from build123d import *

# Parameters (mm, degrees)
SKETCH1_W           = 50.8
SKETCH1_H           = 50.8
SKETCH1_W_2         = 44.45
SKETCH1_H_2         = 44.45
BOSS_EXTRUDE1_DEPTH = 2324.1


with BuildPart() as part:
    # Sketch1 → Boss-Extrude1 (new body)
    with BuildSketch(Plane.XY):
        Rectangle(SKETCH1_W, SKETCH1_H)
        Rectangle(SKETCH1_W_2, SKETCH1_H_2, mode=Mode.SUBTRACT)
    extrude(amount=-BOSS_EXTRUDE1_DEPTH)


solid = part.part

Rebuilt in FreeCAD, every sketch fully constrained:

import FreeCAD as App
import Part
import Sketcher
from FreeCAD import Vector
Q = App.Units.Quantity


def add_polygon(sketch, points):
    """Adds a closed chain of lines whose ends are joined by coincident constraints."""
    first, n = sketch.GeometryCount, len(points)
    for a, b in zip(points, points[1:] + points[:1]):
        sketch.addGeometry(Part.LineSegment(App.Vector(*a, 0), App.Vector(*b, 0)), False)
    for i in range(n):
        sketch.addConstraint(Sketcher.Constraint("Coincident", first + i, 2, first + (i + 1) % n, 1))

doc = App.newDocument("Part")
params = doc.addObject("Spreadsheet::Sheet", "Params")
for row, (alias, value) in enumerate([
    ("sketch1_width", "2 in"),
    ("sketch1_width2", "1.75 in"),
    ("pad1_length", "91.5 in"),
], start=1):
    params.set(f"A{row}", alias)
    params.set(f"B{row}", "=" + value)
    params.setAlias(f"B{row}", alias)

body = doc.addObject("PartDesign::Body", "Body")

# Sketch on XY plane
sketch1 = body.newObject("Sketcher::SketchObject", "Sketch")
sketch1.AttachmentSupport = (doc.getObject("XY_Plane"), [""])
sketch1.MapMode = "FlatFace"
add_polygon(sketch1, [(-25, 25), (-25, -25), (25, -25), (25, 25)])  # lines 0-3
add_polygon(sketch1, [(22, -22), (-22, -22), (-22, 22), (22, 22)])  # lines 4-7
sketch1.addConstraint([
    Sketcher.Constraint("Vertical", 0),
    Sketcher.Constraint("Horizontal", 1),
    Sketcher.Constraint("Vertical", 2),
    Sketcher.Constraint("Horizontal", 3),
    Sketcher.Constraint("Horizontal", 4),
    Sketcher.Constraint("Vertical", 5),
    Sketcher.Constraint("Horizontal", 6),
    Sketcher.Constraint("Vertical", 7),
    Sketcher.Constraint("Symmetric", 0, 2, 2, 2, -1, 1),
    Sketcher.Constraint("Symmetric", 4, 2, 6, 2, -1, 1),
    Sketcher.Constraint("Equal", 3, 0),
    Sketcher.Constraint("Equal", 6, 5),
    Sketcher.Constraint("DistanceX", 1, 1, 1, 2, Q("2 in")),
    Sketcher.Constraint("DistanceX", 4, 2, 4, 1, Q("1.75 in")),
])
sketch1.setExpression("Constraints[20]", "Params.sketch1_width")
sketch1.setExpression("Constraints[21]", "Params.sketch1_width2")
pad1 = body.newObject("PartDesign::Pad", "Pad")
pad1.Profile = sketch1
pad1.setExpression("Length", "Params.pad1_length")
pad1.Reversed = True

doc.recompute()
